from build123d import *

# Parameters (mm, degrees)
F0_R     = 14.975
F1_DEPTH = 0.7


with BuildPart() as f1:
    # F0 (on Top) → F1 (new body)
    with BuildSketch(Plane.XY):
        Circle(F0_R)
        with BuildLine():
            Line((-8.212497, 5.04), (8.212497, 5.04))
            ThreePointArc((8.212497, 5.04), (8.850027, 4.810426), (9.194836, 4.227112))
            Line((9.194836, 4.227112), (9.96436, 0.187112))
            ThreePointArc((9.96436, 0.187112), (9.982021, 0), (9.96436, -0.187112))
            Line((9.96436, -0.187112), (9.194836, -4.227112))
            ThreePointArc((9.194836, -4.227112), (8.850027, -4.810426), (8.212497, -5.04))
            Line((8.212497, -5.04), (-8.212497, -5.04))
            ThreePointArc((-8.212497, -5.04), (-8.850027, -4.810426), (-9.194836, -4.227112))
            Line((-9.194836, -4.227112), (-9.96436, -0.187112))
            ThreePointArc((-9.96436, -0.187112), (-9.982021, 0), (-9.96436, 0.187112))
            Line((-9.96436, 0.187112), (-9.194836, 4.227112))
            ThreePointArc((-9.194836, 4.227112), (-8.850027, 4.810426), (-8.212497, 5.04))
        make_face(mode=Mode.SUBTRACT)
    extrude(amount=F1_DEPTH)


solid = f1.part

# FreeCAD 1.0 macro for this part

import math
import FreeCAD as App
import Part
import Sketcher
Q = App.Units.Quantity

doc = App.newDocument("Part")
body = doc.addObject("PartDesign::Body", "Body")

# Sketch on XY plane
sketch1 = body.newObject("Sketcher::SketchObject", "Sketch")
sketch1.AttachmentSupport = (doc.getObject("XY_Plane"), [""])
sketch1.MapMode = "FlatFace"
sketch1.addGeometry(Part.Circle(App.Vector(0, 0, 0), App.Vector(0, 0, 1), 14.975), False)
sketch1.addGeometry(Part.ArcOfCircle(Part.Circle(App.Vector(-8.212498, 4.04, 0), App.Vector(0, 0, 1), 1), math.radians(89.999961), math.radians(169.215724)), False)
sketch1.addGeometry(Part.LineSegment(App.Vector(-8.212497, 5.04, 0), App.Vector(8.212497, 5.04, 0)), False)
sketch1.addGeometry(Part.ArcOfCircle(Part.Circle(App.Vector(8.212498, 4.04, 0), App.Vector(0, 0, 1), 1), math.radians(10.784276), math.radians(90.000039)), False)
sketch1.addGeometry(Part.LineSegment(App.Vector(9.194836, 4.227112, 0), App.Vector(9.96436, 0.187112, 0)), False)
sketch1.addGeometry(Part.ArcOfCircle(Part.Circle(App.Vector(8.981998, 0, 0), App.Vector(0, 0, 1), 1.000023), math.radians(-10.784041), math.radians(10.784041)), False)
sketch1.addGeometry(Part.LineSegment(App.Vector(9.96436, -0.187112, 0), App.Vector(9.194836, -4.227112, 0)), False)
sketch1.addGeometry(Part.ArcOfCircle(Part.Circle(App.Vector(8.212498, -4.04, 0), App.Vector(0, 0, 1), 1), math.radians(-90.000039), math.radians(-10.784276)), False)
sketch1.addGeometry(Part.LineSegment(App.Vector(8.212497, -5.04, 0), App.Vector(-8.212497, -5.04, 0)), False)
sketch1.addGeometry(Part.ArcOfCircle(Part.Circle(App.Vector(-8.212498, -4.04, 0), App.Vector(0, 0, 1), 1), math.radians(-169.215724), math.radians(-89.999961)), False)
sketch1.addGeometry(Part.LineSegment(App.Vector(-9.194836, -4.227112, 0), App.Vector(-9.96436, -0.187112, 0)), False)
sketch1.addGeometry(Part.ArcOfCircle(Part.Circle(App.Vector(-8.981998, 0, 0), App.Vector(0, 0, 1), 1.000023), math.radians(169.215959), math.radians(190.784041)), False)
sketch1.addGeometry(Part.LineSegment(App.Vector(-9.96436, 0.187112, 0), App.Vector(-9.194836, 4.227112, 0)), False)
sketch1.addConstraint(Sketcher.Constraint("Tangent", 1, 1, 2, 1))
sketch1.addConstraint(Sketcher.Constraint("Tangent", 2, 2, 3, 2))
sketch1.addConstraint(Sketcher.Constraint("Tangent", 3, 1, 4, 1))
sketch1.addConstraint(Sketcher.Constraint("Coincident", 4, 2, 5, 2))
sketch1.addConstraint(Sketcher.Constraint("Coincident", 5, 1, 6, 1))
sketch1.addConstraint(Sketcher.Constraint("Tangent", 6, 2, 7, 2))
sketch1.addConstraint(Sketcher.Constraint("Tangent", 7, 1, 8, 1))
sketch1.addConstraint(Sketcher.Constraint("Tangent", 8, 2, 9, 2))
sketch1.addConstraint(Sketcher.Constraint("Tangent", 9, 1, 10, 1))
sketch1.addConstraint(Sketcher.Constraint("Coincident", 10, 2, 11, 2))
sketch1.addConstraint(Sketcher.Constraint("Coincident", 11, 1, 12, 1))
sketch1.addConstraint(Sketcher.Constraint("Tangent", 12, 2, 1, 2))
sketch1.addConstraint(Sketcher.Constraint("Horizontal", 2))
sketch1.addConstraint(Sketcher.Constraint("Horizontal", 8))
sketch1.addConstraint(Sketcher.Constraint("Coincident", 0, 3, -1, 1))
sketch1.addConstraint(Sketcher.Constraint("Equal", 1, 3))
sketch1.addConstraint(Sketcher.Constraint("Equal", 3, 7))
sketch1.addConstraint(Sketcher.Constraint("Equal", 7, 9))
sketch1.addConstraint(Sketcher.Constraint("Equal", 5, 11))
sketch1.addConstraint(Sketcher.Constraint("Symmetric", 1, 3, 7, 3, -1, 1))
sketch1.addConstraint(Sketcher.Constraint("Symmetric", 5, 3, 11, 3, -1, 1))
sketch1.addConstraint(Sketcher.Constraint("Symmetric", 6, 2, 9, 1, -2))
sketch1.addConstraint(Sketcher.Constraint("Parallel", 4, 10))
sketch1.addConstraint(Sketcher.Constraint("Horizontal", 5, 1, 10, 2))
sketch1.addConstraint(Sketcher.Constraint("Horizontal", 4, 2, 11, 1))
sketch1.addConstraint(Sketcher.Constraint("Vertical", 4, 2, 5, 1))
sketch1.addConstraint(Sketcher.Constraint("Radius", 1, Q("1 mm")))
sketch1.addConstraint(Sketcher.Constraint("Diameter", 0, Q("29.95 mm")))
sketch1.addConstraint(Sketcher.Constraint("DistanceY", -1, 1, 1, 3, Q("4.04 mm")))
sketch1.addConstraint(Sketcher.Constraint("DistanceY", 4, 2, 3, 1, Q("4.04 mm")))
sketch1.addConstraint(Sketcher.Constraint("DistanceX", -1, 1, 5, 3, Q("8.981998 mm")))
sketch1.addConstraint(Sketcher.Constraint("Radius", 5, Q("1.000023 mm")))
sketch1.addConstraint(Sketcher.Constraint("DistanceX", 3, 3, 5, 3, Q("0.7695 mm")))
pad1 = body.newObject("PartDesign::Pad", "Pad")
pad1.Profile = sketch1
pad1.Length = 0.7

doc.recompute()
